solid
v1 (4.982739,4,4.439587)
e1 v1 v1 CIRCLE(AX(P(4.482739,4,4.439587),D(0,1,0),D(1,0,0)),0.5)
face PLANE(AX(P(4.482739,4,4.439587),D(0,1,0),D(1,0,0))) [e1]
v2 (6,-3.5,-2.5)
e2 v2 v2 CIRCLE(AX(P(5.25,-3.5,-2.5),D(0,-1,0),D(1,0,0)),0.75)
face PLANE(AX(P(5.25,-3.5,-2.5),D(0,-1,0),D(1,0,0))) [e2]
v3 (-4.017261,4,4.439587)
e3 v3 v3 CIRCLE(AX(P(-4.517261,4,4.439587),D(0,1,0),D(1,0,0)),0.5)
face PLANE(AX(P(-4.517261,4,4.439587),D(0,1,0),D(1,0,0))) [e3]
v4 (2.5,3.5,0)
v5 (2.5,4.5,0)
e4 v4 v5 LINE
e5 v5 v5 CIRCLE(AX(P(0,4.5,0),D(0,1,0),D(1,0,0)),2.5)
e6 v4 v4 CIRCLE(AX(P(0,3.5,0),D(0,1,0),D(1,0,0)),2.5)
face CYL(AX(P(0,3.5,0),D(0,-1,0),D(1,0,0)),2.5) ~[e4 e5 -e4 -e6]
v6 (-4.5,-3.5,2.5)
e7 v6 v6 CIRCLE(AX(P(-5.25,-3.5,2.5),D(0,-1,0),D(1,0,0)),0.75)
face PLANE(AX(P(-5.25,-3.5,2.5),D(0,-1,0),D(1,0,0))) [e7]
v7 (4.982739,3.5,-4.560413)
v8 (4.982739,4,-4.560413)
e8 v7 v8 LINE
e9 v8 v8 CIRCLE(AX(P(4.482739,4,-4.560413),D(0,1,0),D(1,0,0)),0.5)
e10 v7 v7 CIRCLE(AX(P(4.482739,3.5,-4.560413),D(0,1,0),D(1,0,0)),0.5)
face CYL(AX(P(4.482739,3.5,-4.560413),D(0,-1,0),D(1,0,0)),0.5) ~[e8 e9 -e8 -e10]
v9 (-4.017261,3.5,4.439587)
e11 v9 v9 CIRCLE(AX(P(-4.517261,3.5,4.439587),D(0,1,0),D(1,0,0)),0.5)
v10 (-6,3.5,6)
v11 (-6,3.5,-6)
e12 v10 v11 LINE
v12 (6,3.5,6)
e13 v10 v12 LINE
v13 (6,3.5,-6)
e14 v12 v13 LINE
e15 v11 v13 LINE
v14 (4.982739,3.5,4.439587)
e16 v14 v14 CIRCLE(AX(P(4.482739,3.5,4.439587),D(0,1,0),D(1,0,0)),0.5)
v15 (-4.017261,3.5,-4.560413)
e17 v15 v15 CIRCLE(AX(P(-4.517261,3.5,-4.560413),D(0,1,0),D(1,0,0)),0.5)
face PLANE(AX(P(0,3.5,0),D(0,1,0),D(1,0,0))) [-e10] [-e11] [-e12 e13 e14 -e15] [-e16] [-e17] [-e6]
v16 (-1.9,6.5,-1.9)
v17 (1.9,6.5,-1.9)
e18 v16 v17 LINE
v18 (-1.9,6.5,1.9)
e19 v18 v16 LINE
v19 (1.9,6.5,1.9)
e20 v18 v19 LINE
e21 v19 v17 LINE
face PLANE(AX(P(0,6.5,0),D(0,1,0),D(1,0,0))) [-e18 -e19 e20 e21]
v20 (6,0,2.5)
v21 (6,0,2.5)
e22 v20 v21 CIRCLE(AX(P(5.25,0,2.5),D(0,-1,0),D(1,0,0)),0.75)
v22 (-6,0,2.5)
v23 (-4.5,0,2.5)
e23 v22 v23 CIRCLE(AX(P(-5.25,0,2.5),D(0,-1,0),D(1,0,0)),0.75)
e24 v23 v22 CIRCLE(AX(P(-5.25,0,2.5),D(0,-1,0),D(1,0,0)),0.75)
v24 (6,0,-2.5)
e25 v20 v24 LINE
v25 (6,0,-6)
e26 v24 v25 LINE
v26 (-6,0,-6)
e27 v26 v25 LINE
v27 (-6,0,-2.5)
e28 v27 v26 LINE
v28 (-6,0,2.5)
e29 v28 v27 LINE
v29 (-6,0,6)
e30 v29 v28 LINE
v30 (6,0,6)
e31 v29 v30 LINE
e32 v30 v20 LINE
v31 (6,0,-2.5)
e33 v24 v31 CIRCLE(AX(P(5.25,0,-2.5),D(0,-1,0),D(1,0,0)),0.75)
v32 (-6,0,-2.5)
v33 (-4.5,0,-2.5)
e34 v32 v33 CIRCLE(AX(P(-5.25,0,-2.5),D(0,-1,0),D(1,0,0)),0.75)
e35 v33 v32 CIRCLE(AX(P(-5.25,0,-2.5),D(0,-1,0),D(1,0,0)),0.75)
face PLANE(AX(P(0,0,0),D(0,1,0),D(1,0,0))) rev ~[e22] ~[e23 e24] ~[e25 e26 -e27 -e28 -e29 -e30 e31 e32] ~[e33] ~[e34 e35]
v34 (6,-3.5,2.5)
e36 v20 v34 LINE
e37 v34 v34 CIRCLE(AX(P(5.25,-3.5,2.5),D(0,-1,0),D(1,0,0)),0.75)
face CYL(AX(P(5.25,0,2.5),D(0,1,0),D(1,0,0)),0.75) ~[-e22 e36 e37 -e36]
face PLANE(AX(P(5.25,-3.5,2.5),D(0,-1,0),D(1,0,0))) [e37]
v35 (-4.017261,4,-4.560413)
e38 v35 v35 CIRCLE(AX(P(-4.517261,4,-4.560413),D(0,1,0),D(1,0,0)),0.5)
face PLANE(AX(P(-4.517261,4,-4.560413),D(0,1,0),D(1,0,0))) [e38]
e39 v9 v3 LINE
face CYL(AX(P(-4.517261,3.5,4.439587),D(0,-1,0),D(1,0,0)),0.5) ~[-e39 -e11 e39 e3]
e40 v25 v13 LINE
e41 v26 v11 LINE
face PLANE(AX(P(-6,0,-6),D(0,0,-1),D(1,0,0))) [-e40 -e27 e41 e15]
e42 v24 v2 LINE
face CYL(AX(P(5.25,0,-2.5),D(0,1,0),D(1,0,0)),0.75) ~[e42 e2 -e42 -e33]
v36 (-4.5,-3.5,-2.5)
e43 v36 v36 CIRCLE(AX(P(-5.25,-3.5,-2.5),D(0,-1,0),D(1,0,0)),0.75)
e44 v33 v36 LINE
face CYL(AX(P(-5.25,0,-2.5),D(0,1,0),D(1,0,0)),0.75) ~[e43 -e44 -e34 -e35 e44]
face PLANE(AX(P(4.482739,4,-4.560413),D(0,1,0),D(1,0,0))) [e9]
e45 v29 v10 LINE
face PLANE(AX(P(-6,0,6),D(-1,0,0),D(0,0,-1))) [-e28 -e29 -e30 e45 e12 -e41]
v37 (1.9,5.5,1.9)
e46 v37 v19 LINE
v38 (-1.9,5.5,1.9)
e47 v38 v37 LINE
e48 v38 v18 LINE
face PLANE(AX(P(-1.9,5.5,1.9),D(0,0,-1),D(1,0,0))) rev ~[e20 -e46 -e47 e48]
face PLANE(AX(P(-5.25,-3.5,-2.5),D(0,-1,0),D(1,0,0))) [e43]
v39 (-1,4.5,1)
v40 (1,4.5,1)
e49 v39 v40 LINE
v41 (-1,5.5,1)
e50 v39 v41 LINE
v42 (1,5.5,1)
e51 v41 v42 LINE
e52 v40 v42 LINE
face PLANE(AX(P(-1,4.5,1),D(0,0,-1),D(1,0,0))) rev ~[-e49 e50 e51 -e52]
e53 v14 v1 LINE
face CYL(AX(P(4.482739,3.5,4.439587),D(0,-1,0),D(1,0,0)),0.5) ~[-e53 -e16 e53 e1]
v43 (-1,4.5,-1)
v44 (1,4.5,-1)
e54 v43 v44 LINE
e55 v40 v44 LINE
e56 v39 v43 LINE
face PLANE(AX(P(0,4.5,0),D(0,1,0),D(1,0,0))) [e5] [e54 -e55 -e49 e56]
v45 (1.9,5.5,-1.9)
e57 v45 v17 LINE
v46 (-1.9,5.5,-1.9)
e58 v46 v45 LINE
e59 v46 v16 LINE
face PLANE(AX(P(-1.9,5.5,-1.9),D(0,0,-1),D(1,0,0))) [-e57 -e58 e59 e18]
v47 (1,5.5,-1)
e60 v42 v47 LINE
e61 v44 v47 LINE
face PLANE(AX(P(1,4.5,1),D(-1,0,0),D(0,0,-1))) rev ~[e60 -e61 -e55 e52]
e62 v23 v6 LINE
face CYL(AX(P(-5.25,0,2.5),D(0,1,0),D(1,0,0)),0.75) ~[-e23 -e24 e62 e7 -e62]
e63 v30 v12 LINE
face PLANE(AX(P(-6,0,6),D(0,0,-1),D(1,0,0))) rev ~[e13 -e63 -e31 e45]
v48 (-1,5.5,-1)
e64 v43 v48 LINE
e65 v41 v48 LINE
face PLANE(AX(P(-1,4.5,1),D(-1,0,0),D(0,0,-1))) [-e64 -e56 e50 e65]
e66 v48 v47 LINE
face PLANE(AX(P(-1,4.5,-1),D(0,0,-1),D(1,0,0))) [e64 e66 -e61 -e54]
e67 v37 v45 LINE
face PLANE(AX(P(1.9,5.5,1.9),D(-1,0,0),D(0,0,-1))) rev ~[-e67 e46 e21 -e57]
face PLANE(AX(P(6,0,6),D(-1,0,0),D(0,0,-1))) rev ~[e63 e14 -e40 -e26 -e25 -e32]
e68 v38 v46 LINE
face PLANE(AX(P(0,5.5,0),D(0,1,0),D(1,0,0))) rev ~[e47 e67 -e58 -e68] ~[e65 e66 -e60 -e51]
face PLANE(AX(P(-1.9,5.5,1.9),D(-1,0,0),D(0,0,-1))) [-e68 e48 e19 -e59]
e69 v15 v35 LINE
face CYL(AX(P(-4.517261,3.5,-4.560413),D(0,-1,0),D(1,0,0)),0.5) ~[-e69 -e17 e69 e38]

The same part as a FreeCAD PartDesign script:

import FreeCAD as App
import Part
import Sketcher

V = App.Vector

doc = App.newDocument("Part")
body = doc.addObject("PartDesign::Body", "Body")

sketch1 = doc.addObject("Sketcher::SketchObject", "Sketch")
body.addObject(sketch1)
sketch1.AttachmentSupport = (doc.XZ_Plane, [""])
sketch1.MapMode = "FlatFace"
sketch1.addGeometry([
    Part.LineSegment(V(-6, -6, 0), V(-6, 6, 0)),
    Part.LineSegment(V(-6, 6, 0), V(6, 6, 0)),
    Part.LineSegment(V(6, 6, 0), V(6, -6, 0)),
    Part.LineSegment(V(6, -6, 0), V(-6, -6, 0)),
], False)
sketch1.addConstraint([
    Sketcher.Constraint("Coincident", 0, 2, 1, 1),
    Sketcher.Constraint("Coincident", 1, 2, 2, 1),
    Sketcher.Constraint("Coincident", 2, 2, 3, 1),
    Sketcher.Constraint("Coincident", 3, 2, 0, 1),
    Sketcher.Constraint("Vertical", 0),
    Sketcher.Constraint("Horizontal", 1),
    Sketcher.Constraint("Vertical", 2),
    Sketcher.Constraint("Horizontal", 3),
    Sketcher.Constraint("Symmetric", 0, 2, 2, 2, -1, 1),
    Sketcher.Constraint("Equal", 3, 0),
    Sketcher.Constraint("DistanceX", 1, 1, 1, 2, 12.0),
])
pad1 = doc.addObject("PartDesign::Pad", "Pad")
body.addObject(pad1)
pad1.Profile = sketch1
pad1.Length = 3.5
pad1.Reversed = True

sketch2 = doc.addObject("Sketcher::SketchObject", "Sketch001")
body.addObject(sketch2)
sketch2.AttachmentSupport = (doc.XZ_Plane, [""])
sketch2.MapMode = "FlatFace"
sketch2.AttachmentOffset = App.Placement(V(0, 0, -3.5), App.Rotation())
sketch2.addGeometry(Part.Circle(V(0, 0, 0), V(0, 0, 1), 2.5), False)
sketch2.addConstraint([
    Sketcher.Constraint("Coincident", 0, 3, -1, 1),
    Sketcher.Constraint("Diameter", 0, 5.0),
])
pad2 = doc.addObject("PartDesign::Pad", "Pad001")
body.addObject(pad2)
pad2.Profile = sketch2
pad2.Length = 1
pad2.Reversed = True

sketch3 = doc.addObject("Sketcher::SketchObject", "Sketch002")
body.addObject(sketch3)
sketch3.AttachmentSupport = (doc.XZ_Plane, [""])
sketch3.MapMode = "FlatFace"
sketch3.AttachmentOffset = App.Placement(V(0, 0, -3.5), App.Rotation())
sketch3.addGeometry([
    Part.Circle(V(-4.5, -4.6, 0), V(0, 0, 1), 0.5),
    Part.Circle(V(-4.5, 4.4, 0), V(0, 0, 1), 0.5),
    Part.Circle(V(4.5, 4.4, 0), V(0, 0, 1), 0.5),
    Part.Circle(V(4.5, -4.6, 0), V(0, 0, 1), 0.5),
], False)
sketch3.addConstraint([
    Sketcher.Constraint("Equal", 0, 1),
    Sketcher.Constraint("Equal", 1, 2),
    Sketcher.Constraint("Equal", 2, 3),
    Sketcher.Constraint("Horizontal", 1, 3, 2, 3),
    Sketcher.Constraint("Horizontal", 0, 3, 3, 3),
    Sketcher.Constraint("Vertical", 0, 3, 1, 3),
    Sketcher.Constraint("Vertical", 2, 3, 3, 3),
    Sketcher.Constraint("Diameter", 0, 1.0),
    Sketcher.Constraint("DistanceY", 0, 3, 1, 3, 9.0),
    Sketcher.Constraint("DistanceX", 1, 3, 2, 3, 9.0),
    Sketcher.Constraint("DistanceX", 0, 3, -1, 1, 4.517261),
    Sketcher.Constraint("DistanceY", 0, 3, -1, 1, 4.560413),
])
pad3 = doc.addObject("PartDesign::Pad", "Pad002")
body.addObject(pad3)
pad3.Profile = sketch3
pad3.Length = 0.5
pad3.Reversed = True

sketch4 = doc.addObject("Sketcher::SketchObject", "Sketch003")
body.addObject(sketch4)
sketch4.AttachmentSupport = (doc.XZ_Plane, [""])
sketch4.MapMode = "FlatFace"
sketch4.AttachmentOffset = App.Placement(V(0, 0, -4.5), App.Rotation())
sketch4.addGeometry([
    Part.LineSegment(V(-1, -1, 0), V(-1, 1, 0)),
    Part.LineSegment(V(-1, 1, 0), V(1, 1, 0)),
    Part.LineSegment(V(1, 1, 0), V(1, -1, 0)),
    Part.LineSegment(V(1, -1, 0), V(-1, -1, 0)),
], False)
sketch4.addConstraint([
    Sketcher.Constraint("Coincident", 0, 2, 1, 1),
    Sketcher.Constraint("Coincident", 1, 2, 2, 1),
    Sketcher.Constraint("Coincident", 2, 2, 3, 1),
    Sketcher.Constraint("Coincident", 3, 2, 0, 1),
    Sketcher.Constraint("Vertical", 0),
    Sketcher.Constraint("Horizontal", 1),
    Sketcher.Constraint("Vertical", 2),
    Sketcher.Constraint("Horizontal", 3),
    Sketcher.Constraint("Symmetric", 0, 2, 2, 2, -1, 1),
    Sketcher.Constraint("Equal", 3, 0),
    Sketcher.Constraint("DistanceX", 1, 1, 1, 2, 2.0),
])
pad4 = doc.addObject("PartDesign::Pad", "Pad003")
body.addObject(pad4)
pad4.Profile = sketch4
pad4.Length = 1
pad4.Reversed = True

sketch5 = doc.addObject("Sketcher::SketchObject", "Sketch004")
body.addObject(sketch5)
sketch5.AttachmentSupport = (doc.XZ_Plane, [""])
sketch5.MapMode = "FlatFace"
sketch5.AttachmentOffset = App.Placement(V(0, 0, -5.5), App.Rotation())
sketch5.addGeometry([
    Part.LineSegment(V(-1.9, -1.9, 0), V(-1.9, 1.9, 0)),
    Part.LineSegment(V(-1.9, 1.9, 0), V(1.9, 1.9, 0)),
    Part.LineSegment(V(1.9, 1.9, 0), V(1.9, -1.9, 0)),
    Part.LineSegment(V(1.9, -1.9, 0), V(-1.9, -1.9, 0)),
], False)
sketch5.addConstraint([
    Sketcher.Constraint("Coincident", 0, 2, 1, 1),
    Sketcher.Constraint("Coincident", 1, 2, 2, 1),
    Sketcher.Constraint("Coincident", 2, 2, 3, 1),
    Sketcher.Constraint("Coincident", 3, 2, 0, 1),
    Sketcher.Constraint("Vertical", 0),
    Sketcher.Constraint("Horizontal", 1),
    Sketcher.Constraint("Vertical", 2),
    Sketcher.Constraint("Horizontal", 3),
    Sketcher.Constraint("Symmetric", 0, 2, 2, 2, -1, 1),
    Sketcher.Constraint("Equal", 3, 0),
    Sketcher.Constraint("DistanceX", 1, 1, 1, 2, 3.8),
])
pad5 = doc.addObject("PartDesign::Pad", "Pad004")
body.addObject(pad5)
pad5.Profile = sketch5
pad5.Length = 1
pad5.Reversed = True

sketch6 = doc.addObject("Sketcher::SketchObject", "Sketch005")
body.addObject(sketch6)
sketch6.AttachmentSupport = (doc.XZ_Plane, [""])
sketch6.MapMode = "FlatFace"
sketch6.addGeometry([
    Part.Circle(V(-5.2, 2.5, 0), V(0, 0, 1), 0.8),
    Part.Circle(V(-5.2, -2.5, 0), V(0, 0, 1), 0.8),
    Part.Circle(V(5.2, -2.5, 0), V(0, 0, 1), 0.8),
    Part.Circle(V(5.2, 2.5, 0), V(0, 0, 1), 0.8),
], False)
sketch6.addConstraint([
    Sketcher.Constraint("Equal", 0, 1),
    Sketcher.Constraint("Equal", 1, 2),
    Sketcher.Constraint("Equal", 2, 3),
    Sketcher.Constraint("Symmetric", 0, 3, 2, 3, -1, 1),
    Sketcher.Constraint("Symmetric", 1, 3, 3, 3, -1, 1),
    Sketcher.Constraint("Symmetric", 1, 3, 2, 3, -2),
    Sketcher.Constraint("Diameter", 0, 1.5),
    Sketcher.Constraint("DistanceY", 1, 3, 0, 3, 5.0),
    Sketcher.Constraint("DistanceX", 1, 3, 2, 3, 10.5),
])
pad6 = doc.addObject("PartDesign::Pad", "Pad005")
body.addObject(pad6)
pad6.Profile = sketch6
pad6.Length = 3.5

doc.recompute()
